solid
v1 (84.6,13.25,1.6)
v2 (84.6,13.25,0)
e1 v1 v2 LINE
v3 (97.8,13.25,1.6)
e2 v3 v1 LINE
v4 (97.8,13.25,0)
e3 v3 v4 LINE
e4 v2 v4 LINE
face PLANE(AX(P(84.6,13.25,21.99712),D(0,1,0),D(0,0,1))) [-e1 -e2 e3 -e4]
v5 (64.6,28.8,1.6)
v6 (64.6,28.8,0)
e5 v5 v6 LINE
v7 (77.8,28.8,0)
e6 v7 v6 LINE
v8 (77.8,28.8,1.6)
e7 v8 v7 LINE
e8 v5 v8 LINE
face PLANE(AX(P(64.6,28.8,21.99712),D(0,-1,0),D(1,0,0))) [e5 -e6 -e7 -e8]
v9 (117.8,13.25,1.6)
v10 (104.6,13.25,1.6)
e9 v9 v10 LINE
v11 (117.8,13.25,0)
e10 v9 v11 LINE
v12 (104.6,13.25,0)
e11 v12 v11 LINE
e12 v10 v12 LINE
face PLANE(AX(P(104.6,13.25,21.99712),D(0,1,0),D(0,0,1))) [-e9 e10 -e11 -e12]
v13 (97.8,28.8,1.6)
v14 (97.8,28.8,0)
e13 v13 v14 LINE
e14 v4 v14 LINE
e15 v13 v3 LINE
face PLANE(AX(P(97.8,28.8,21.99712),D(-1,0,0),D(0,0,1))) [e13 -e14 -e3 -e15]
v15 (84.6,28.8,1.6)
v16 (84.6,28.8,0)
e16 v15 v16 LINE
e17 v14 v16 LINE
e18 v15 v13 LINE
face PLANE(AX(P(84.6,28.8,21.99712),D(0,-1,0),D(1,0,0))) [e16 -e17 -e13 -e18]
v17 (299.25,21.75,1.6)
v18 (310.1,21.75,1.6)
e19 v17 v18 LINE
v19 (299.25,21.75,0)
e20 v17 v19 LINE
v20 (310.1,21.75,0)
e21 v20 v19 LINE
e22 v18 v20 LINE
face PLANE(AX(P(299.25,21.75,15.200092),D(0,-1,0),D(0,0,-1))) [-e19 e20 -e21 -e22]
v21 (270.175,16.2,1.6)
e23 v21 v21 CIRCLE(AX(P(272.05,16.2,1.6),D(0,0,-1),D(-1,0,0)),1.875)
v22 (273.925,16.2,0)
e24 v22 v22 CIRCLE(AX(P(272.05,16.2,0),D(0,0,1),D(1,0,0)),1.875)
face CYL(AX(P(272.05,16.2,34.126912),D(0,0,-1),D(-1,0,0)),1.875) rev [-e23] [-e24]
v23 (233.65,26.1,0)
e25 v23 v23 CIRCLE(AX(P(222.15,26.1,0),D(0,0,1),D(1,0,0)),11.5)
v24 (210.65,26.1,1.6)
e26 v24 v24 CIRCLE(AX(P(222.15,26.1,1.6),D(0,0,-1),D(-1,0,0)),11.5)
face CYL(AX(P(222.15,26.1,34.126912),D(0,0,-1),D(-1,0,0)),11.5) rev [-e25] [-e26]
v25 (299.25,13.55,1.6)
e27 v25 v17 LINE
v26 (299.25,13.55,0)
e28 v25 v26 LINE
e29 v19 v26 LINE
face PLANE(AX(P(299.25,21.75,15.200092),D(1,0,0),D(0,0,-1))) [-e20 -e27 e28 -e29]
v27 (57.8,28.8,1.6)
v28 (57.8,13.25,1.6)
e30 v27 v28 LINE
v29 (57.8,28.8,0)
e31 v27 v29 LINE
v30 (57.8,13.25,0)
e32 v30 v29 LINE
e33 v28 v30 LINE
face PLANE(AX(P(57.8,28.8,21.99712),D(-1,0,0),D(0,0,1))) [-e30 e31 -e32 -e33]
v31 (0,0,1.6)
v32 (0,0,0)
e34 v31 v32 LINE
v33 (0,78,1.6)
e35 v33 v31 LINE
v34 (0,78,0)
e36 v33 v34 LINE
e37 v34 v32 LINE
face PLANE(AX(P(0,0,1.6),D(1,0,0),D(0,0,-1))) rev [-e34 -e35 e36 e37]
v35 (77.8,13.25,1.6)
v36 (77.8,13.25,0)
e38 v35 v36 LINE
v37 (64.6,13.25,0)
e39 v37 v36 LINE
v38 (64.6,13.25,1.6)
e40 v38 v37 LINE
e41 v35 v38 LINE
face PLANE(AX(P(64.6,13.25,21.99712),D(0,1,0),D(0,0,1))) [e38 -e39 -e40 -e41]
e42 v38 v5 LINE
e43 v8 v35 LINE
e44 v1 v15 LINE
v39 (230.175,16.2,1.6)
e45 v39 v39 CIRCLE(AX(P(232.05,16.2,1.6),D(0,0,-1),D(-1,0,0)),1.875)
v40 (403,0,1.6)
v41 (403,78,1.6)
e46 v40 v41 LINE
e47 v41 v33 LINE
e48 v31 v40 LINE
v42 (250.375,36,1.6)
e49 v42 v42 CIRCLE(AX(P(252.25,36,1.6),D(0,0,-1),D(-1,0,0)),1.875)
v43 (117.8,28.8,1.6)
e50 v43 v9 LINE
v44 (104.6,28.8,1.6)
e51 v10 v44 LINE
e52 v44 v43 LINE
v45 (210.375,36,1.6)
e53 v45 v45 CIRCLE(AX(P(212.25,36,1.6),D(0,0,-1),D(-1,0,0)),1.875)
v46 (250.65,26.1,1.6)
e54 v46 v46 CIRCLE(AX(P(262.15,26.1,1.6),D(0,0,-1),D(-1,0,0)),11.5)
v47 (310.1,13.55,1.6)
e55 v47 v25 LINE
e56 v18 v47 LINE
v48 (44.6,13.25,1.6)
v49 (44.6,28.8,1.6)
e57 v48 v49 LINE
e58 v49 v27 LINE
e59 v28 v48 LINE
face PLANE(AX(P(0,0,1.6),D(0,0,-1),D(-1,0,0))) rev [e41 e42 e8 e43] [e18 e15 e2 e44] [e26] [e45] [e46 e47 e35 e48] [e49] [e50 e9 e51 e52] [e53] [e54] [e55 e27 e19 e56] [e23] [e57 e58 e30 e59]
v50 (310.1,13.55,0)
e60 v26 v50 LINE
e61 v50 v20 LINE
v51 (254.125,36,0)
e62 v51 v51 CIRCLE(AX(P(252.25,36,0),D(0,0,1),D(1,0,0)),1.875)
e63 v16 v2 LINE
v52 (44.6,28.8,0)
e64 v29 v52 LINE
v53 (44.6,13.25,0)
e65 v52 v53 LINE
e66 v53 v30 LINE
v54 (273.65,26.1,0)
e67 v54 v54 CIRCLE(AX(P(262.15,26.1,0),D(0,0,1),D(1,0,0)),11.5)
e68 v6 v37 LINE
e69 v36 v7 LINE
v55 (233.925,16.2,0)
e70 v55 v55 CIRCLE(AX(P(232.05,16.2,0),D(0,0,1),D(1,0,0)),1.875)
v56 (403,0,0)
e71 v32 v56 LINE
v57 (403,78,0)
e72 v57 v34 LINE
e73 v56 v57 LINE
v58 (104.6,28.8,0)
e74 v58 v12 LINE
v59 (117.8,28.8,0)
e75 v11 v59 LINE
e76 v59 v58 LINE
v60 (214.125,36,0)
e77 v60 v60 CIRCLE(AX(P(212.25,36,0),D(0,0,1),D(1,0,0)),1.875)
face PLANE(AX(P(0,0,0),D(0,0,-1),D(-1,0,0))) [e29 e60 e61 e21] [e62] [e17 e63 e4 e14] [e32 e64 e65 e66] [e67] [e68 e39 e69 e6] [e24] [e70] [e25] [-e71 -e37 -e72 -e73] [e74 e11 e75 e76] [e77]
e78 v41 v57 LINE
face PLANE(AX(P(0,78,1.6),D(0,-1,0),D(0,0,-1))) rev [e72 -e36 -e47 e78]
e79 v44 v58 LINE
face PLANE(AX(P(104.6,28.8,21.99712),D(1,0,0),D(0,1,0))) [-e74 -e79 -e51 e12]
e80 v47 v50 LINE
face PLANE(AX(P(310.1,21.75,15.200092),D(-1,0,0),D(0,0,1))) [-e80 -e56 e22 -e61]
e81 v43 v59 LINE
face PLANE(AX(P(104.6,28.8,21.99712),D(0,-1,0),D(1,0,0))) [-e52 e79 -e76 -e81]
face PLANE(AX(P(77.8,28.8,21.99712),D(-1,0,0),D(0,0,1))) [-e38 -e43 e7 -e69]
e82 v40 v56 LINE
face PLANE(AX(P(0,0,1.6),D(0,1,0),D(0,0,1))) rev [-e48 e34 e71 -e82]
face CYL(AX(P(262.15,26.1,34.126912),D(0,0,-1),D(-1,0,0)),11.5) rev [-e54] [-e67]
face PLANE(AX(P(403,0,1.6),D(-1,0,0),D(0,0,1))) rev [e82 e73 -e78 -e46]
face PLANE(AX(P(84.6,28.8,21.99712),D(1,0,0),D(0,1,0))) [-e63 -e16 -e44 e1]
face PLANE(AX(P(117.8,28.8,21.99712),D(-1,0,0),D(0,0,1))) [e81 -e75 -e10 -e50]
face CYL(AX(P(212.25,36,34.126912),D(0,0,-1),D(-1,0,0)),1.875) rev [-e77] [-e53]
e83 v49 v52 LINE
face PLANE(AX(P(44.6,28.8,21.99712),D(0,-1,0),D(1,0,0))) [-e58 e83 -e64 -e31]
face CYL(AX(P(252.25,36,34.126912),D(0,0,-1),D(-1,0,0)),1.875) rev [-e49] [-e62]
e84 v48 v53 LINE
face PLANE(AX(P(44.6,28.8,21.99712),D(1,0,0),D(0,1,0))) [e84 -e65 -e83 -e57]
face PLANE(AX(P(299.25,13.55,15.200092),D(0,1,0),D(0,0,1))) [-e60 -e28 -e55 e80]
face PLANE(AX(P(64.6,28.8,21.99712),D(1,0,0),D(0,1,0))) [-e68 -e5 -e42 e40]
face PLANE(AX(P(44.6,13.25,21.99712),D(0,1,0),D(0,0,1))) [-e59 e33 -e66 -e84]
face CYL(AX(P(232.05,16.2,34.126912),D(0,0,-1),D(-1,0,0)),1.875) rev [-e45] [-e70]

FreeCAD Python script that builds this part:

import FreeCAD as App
import Part
import Sketcher
from FreeCAD import Vector


def add_polygon(sketch, points):
    """Adds a closed chain of lines whose ends are joined by coincident constraints."""
    first, n = sketch.GeometryCount, len(points)
    for a, b in zip(points, points[1:] + points[:1]):
        sketch.addGeometry(Part.LineSegment(App.Vector(*a, 0), App.Vector(*b, 0)), False)
    for i in range(n):
        sketch.addConstraint(Sketcher.Constraint("Coincident", first + i, 2, first + (i + 1) % n, 1))

doc = App.newDocument("Part")
params = doc.addObject("Spreadsheet::Sheet", "Params")
for row, (alias, value) in enumerate([
    ("sketch1_width", "403 mm"),
    ("sketch1_height", "78 mm"),
    ("pad1_length", "1.6 mm"),
    ("sketch2_diameter", "23 mm"),
    ("sketch2_diameter2", "3.75 mm"),
    ("pocket1_length", "1.6 mm"),
    ("sketch3_width", "13.2 mm"),
    ("sketch3_height", "15.55 mm"),
    ("pocket2_length", "1.6 mm"),
    ("sketch4_height", "8.2 mm"),
    ("sketch4_width", "10.85 mm"),
    ("pocket3_length", "1.6 mm"),
], start=1):
    params.set(f"A{row}", alias)
    params.set(f"B{row}", "=" + value)
    params.setAlias(f"B{row}", alias)

body = doc.addObject("PartDesign::Body", "Body")

# Sketch on XY plane
sketch1 = body.newObject("Sketcher::SketchObject", "Sketch")
sketch1.AttachmentSupport = (doc.getObject("XY_Plane"), [""])
sketch1.MapMode = "FlatFace"
add_polygon(sketch1, [(0, 78), (0, 0), (403, 0), (403, 78)])  # lines 0-3
sketch1.addConstraint([
    Sketcher.Constraint("Vertical", 0),
    Sketcher.Constraint("Horizontal", 1),
    Sketcher.Constraint("Vertical", 2),
    Sketcher.Constraint("Horizontal", 3),
    Sketcher.Constraint("Coincident", 0, 2, -1, 1),
    Sketcher.Constraint("DistanceX", 1, 1, 1, 2, 403.0),
    Sketcher.Constraint("DistanceY", 0, 2, 0, 1, 78.0),
])
sketch1.setExpression("Constraints[9]", "Params.sketch1_width")
sketch1.setExpression("Constraints[10]", "Params.sketch1_height")
pad1 = body.newObject("PartDesign::Pad", "Pad")
pad1.Profile = sketch1
pad1.setExpression("Length", "Params.pad1_length")

# Sketch on XY plane
sketch2 = body.newObject("Sketcher::SketchObject", "Sketch001")
sketch2.AttachmentSupport = (doc.getObject("XY_Plane"), [""])
sketch2.MapMode = "FlatFace"
sketch2.addGeometry([
    Part.Circle(Vector(222.2, 26.1, 0), Vector(0, 0, 1), 11.5),  # 0
    Part.Circle(Vector(212.2, 36, 0), Vector(0, 0, 1), 1.9),  # 1
    Part.Circle(Vector(232.1, 16.2, 0), Vector(0, 0, 1), 1.9),  # 2
    Part.Circle(Vector(262.1, 26.1, 0), Vector(0, 0, 1), 11.5),  # 3
    Part.Circle(Vector(252.2, 36, 0), Vector(0, 0, 1), 1.9),  # 4
    Part.Circle(Vector(272.1, 16.2, 0), Vector(0, 0, 1), 1.9),  # 5
], False)
sketch2.addConstraint([
    Sketcher.Constraint("Equal", 1, 2),
    Sketcher.Constraint("Equal", 0, 3),
    Sketcher.Constraint("Equal", 2, 4),
    Sketcher.Constraint("Equal", 4, 5),
    Sketcher.Constraint("Horizontal", 0, 3, 3, 3),
    Sketcher.Constraint("Horizontal", 1, 3, 4, 3),
    Sketcher.Constraint("Horizontal", 2, 3, 5, 3),
    Sketcher.Constraint("Diameter", 0, 23.0),
    Sketcher.Constraint("Diameter", 1, 3.75),
    Sketcher.Constraint("DistanceY", -1, 1, 1, 3, 36.0),
    Sketcher.Constraint("DistanceX", 0, 3, 3, 3, 40.0),
    Sketcher.Constraint("DistanceX", 1, 3, 4, 3, 40.0),
    Sketcher.Constraint("DistanceX", 2, 3, 5, 3, 40.0),
    Sketcher.Constraint("DistanceY", -1, 1, 0, 3, 26.1),
    Sketcher.Constraint("DistanceY", -1, 1, 2, 3, 16.2),
    Sketcher.Constraint("DistanceX", 1, 3, 0, 3, 9.9),
    Sketcher.Constraint("DistanceX", 0, 3, 2, 3, 9.9),
    Sketcher.Constraint("DistanceX", -1, 1, 0, 3, 222.15),
])
sketch2.setExpression("Constraints[7]", "Params.sketch2_diameter")
sketch2.setExpression("Constraints[8]", "Params.sketch2_diameter2")
pocket1 = body.newObject("PartDesign::Pocket", "Pocket")
pocket1.Profile = sketch2
pocket1.setExpression("Length", "Params.pocket1_length")
pocket1.Reversed = True

# Sketch on XY plane
sketch3 = body.newObject("Sketcher::SketchObject", "Sketch002")
sketch3.AttachmentSupport = (doc.getObject("XY_Plane"), [""])
sketch3.MapMode = "FlatFace"
add_polygon(sketch3, [(65, 29), (65, 13), (78, 13), (78, 29)])  # lines 0-3
add_polygon(sketch3, [(45, 29), (45, 13), (58, 13), (58, 29)])  # lines 4-7
add_polygon(sketch3, [(85, 29), (85, 13), (98, 13), (98, 29)])  # lines 8-11
add_polygon(sketch3, [(105, 29), (105, 13), (118, 13), (118, 29)])  # lines 12-15
sketch3.addConstraint([
    Sketcher.Constraint("Vertical", 0),
    Sketcher.Constraint("Horizontal", 1),
    Sketcher.Constraint("Vertical", 2),
    Sketcher.Constraint("Horizontal", 3),
    Sketcher.Constraint("Vertical", 4),
    Sketcher.Constraint("Horizontal", 5),
    Sketcher.Constraint("Vertical", 6),
    Sketcher.Constraint("Horizontal", 7),
    Sketcher.Constraint("Vertical", 8),
    Sketcher.Constraint("Horizontal", 9),
    Sketcher.Constraint("Vertical", 10),
    Sketcher.Constraint("Horizontal", 11),
    Sketcher.Constraint("Vertical", 12),
    Sketcher.Constraint("Horizontal", 13),
    Sketcher.Constraint("Vertical", 14),
    Sketcher.Constraint("Horizontal", 15),
    Sketcher.Constraint("Horizontal", 1, 2, 4, 2),
    Sketcher.Constraint("Horizontal", 3, 2, 6, 2),
    Sketcher.Constraint("Horizontal", 5, 2, 8, 2),
    Sketcher.Constraint("Horizontal", 7, 2, 10, 2),
    Sketcher.Constraint("Horizontal", 9, 2, 12, 2),
    Sketcher.Constraint("Horizontal", 11, 2, 14, 2),
    Sketcher.Constraint("Equal", 3, 5),
    Sketcher.Constraint("Equal", 7, 9),
    Sketcher.Constraint("Equal", 11, 13),
    Sketcher.Constraint("DistanceX", 1, 1, 1, 2, 13.2),
    Sketcher.Constraint("DistanceX", 4, 2, 0, 2, 20.0),
    Sketcher.Constraint("DistanceX", 0, 2, 8, 2, 20.0),
    Sketcher.Constraint("DistanceX", 8, 2, 12, 2, 20.0),
    Sketcher.Constraint("DistanceY", 0, 2, 0, 1, 15.55),
    Sketcher.Constraint("DistanceX", -1, 1, 0, 2, 64.6),
    Sketcher.Constraint("DistanceY", -1, 1, 2, 2, 28.8),
])
sketch3.setExpression("Constraints[41]", "Params.sketch3_width")
sketch3.setExpression("Constraints[45]", "Params.sketch3_height")
pocket2 = body.newObject("PartDesign::Pocket", "Pocket001")
pocket2.Profile = sketch3
pocket2.setExpression("Length", "Params.pocket2_length")
pocket2.Reversed = True

# Sketch on XY plane
sketch4 = body.newObject("Sketcher::SketchObject", "Sketch003")
sketch4.AttachmentSupport = (doc.getObject("XY_Plane"), [""])
sketch4.MapMode = "FlatFace"
add_polygon(sketch4, [(299, 22), (299, 14), (310, 14), (310, 22)])  # lines 0-3
sketch4.addConstraint([
    Sketcher.Constraint("Vertical", 0),
    Sketcher.Constraint("Horizontal", 1),
    Sketcher.Constraint("Vertical", 2),
    Sketcher.Constraint("Horizontal", 3),
    Sketcher.Constraint("DistanceY", 0, 2, 0, 1, 8.2),
    Sketcher.Constraint("DistanceX", 1, 1, 1, 2, 10.85),
    Sketcher.Constraint("DistanceX", -1, 1, 1, 2, 310.1),
    Sketcher.Constraint("DistanceY", -1, 1, 0, 2, 13.55),
])
sketch4.setExpression("Constraints[8]", "Params.sketch4_height")
sketch4.setExpression("Constraints[9]", "Params.sketch4_width")
pocket3 = body.newObject("PartDesign::Pocket", "Pocket002")
pocket3.Profile = sketch4
pocket3.setExpression("Length", "Params.pocket3_length")
pocket3.Reversed = True

doc.recompute()
